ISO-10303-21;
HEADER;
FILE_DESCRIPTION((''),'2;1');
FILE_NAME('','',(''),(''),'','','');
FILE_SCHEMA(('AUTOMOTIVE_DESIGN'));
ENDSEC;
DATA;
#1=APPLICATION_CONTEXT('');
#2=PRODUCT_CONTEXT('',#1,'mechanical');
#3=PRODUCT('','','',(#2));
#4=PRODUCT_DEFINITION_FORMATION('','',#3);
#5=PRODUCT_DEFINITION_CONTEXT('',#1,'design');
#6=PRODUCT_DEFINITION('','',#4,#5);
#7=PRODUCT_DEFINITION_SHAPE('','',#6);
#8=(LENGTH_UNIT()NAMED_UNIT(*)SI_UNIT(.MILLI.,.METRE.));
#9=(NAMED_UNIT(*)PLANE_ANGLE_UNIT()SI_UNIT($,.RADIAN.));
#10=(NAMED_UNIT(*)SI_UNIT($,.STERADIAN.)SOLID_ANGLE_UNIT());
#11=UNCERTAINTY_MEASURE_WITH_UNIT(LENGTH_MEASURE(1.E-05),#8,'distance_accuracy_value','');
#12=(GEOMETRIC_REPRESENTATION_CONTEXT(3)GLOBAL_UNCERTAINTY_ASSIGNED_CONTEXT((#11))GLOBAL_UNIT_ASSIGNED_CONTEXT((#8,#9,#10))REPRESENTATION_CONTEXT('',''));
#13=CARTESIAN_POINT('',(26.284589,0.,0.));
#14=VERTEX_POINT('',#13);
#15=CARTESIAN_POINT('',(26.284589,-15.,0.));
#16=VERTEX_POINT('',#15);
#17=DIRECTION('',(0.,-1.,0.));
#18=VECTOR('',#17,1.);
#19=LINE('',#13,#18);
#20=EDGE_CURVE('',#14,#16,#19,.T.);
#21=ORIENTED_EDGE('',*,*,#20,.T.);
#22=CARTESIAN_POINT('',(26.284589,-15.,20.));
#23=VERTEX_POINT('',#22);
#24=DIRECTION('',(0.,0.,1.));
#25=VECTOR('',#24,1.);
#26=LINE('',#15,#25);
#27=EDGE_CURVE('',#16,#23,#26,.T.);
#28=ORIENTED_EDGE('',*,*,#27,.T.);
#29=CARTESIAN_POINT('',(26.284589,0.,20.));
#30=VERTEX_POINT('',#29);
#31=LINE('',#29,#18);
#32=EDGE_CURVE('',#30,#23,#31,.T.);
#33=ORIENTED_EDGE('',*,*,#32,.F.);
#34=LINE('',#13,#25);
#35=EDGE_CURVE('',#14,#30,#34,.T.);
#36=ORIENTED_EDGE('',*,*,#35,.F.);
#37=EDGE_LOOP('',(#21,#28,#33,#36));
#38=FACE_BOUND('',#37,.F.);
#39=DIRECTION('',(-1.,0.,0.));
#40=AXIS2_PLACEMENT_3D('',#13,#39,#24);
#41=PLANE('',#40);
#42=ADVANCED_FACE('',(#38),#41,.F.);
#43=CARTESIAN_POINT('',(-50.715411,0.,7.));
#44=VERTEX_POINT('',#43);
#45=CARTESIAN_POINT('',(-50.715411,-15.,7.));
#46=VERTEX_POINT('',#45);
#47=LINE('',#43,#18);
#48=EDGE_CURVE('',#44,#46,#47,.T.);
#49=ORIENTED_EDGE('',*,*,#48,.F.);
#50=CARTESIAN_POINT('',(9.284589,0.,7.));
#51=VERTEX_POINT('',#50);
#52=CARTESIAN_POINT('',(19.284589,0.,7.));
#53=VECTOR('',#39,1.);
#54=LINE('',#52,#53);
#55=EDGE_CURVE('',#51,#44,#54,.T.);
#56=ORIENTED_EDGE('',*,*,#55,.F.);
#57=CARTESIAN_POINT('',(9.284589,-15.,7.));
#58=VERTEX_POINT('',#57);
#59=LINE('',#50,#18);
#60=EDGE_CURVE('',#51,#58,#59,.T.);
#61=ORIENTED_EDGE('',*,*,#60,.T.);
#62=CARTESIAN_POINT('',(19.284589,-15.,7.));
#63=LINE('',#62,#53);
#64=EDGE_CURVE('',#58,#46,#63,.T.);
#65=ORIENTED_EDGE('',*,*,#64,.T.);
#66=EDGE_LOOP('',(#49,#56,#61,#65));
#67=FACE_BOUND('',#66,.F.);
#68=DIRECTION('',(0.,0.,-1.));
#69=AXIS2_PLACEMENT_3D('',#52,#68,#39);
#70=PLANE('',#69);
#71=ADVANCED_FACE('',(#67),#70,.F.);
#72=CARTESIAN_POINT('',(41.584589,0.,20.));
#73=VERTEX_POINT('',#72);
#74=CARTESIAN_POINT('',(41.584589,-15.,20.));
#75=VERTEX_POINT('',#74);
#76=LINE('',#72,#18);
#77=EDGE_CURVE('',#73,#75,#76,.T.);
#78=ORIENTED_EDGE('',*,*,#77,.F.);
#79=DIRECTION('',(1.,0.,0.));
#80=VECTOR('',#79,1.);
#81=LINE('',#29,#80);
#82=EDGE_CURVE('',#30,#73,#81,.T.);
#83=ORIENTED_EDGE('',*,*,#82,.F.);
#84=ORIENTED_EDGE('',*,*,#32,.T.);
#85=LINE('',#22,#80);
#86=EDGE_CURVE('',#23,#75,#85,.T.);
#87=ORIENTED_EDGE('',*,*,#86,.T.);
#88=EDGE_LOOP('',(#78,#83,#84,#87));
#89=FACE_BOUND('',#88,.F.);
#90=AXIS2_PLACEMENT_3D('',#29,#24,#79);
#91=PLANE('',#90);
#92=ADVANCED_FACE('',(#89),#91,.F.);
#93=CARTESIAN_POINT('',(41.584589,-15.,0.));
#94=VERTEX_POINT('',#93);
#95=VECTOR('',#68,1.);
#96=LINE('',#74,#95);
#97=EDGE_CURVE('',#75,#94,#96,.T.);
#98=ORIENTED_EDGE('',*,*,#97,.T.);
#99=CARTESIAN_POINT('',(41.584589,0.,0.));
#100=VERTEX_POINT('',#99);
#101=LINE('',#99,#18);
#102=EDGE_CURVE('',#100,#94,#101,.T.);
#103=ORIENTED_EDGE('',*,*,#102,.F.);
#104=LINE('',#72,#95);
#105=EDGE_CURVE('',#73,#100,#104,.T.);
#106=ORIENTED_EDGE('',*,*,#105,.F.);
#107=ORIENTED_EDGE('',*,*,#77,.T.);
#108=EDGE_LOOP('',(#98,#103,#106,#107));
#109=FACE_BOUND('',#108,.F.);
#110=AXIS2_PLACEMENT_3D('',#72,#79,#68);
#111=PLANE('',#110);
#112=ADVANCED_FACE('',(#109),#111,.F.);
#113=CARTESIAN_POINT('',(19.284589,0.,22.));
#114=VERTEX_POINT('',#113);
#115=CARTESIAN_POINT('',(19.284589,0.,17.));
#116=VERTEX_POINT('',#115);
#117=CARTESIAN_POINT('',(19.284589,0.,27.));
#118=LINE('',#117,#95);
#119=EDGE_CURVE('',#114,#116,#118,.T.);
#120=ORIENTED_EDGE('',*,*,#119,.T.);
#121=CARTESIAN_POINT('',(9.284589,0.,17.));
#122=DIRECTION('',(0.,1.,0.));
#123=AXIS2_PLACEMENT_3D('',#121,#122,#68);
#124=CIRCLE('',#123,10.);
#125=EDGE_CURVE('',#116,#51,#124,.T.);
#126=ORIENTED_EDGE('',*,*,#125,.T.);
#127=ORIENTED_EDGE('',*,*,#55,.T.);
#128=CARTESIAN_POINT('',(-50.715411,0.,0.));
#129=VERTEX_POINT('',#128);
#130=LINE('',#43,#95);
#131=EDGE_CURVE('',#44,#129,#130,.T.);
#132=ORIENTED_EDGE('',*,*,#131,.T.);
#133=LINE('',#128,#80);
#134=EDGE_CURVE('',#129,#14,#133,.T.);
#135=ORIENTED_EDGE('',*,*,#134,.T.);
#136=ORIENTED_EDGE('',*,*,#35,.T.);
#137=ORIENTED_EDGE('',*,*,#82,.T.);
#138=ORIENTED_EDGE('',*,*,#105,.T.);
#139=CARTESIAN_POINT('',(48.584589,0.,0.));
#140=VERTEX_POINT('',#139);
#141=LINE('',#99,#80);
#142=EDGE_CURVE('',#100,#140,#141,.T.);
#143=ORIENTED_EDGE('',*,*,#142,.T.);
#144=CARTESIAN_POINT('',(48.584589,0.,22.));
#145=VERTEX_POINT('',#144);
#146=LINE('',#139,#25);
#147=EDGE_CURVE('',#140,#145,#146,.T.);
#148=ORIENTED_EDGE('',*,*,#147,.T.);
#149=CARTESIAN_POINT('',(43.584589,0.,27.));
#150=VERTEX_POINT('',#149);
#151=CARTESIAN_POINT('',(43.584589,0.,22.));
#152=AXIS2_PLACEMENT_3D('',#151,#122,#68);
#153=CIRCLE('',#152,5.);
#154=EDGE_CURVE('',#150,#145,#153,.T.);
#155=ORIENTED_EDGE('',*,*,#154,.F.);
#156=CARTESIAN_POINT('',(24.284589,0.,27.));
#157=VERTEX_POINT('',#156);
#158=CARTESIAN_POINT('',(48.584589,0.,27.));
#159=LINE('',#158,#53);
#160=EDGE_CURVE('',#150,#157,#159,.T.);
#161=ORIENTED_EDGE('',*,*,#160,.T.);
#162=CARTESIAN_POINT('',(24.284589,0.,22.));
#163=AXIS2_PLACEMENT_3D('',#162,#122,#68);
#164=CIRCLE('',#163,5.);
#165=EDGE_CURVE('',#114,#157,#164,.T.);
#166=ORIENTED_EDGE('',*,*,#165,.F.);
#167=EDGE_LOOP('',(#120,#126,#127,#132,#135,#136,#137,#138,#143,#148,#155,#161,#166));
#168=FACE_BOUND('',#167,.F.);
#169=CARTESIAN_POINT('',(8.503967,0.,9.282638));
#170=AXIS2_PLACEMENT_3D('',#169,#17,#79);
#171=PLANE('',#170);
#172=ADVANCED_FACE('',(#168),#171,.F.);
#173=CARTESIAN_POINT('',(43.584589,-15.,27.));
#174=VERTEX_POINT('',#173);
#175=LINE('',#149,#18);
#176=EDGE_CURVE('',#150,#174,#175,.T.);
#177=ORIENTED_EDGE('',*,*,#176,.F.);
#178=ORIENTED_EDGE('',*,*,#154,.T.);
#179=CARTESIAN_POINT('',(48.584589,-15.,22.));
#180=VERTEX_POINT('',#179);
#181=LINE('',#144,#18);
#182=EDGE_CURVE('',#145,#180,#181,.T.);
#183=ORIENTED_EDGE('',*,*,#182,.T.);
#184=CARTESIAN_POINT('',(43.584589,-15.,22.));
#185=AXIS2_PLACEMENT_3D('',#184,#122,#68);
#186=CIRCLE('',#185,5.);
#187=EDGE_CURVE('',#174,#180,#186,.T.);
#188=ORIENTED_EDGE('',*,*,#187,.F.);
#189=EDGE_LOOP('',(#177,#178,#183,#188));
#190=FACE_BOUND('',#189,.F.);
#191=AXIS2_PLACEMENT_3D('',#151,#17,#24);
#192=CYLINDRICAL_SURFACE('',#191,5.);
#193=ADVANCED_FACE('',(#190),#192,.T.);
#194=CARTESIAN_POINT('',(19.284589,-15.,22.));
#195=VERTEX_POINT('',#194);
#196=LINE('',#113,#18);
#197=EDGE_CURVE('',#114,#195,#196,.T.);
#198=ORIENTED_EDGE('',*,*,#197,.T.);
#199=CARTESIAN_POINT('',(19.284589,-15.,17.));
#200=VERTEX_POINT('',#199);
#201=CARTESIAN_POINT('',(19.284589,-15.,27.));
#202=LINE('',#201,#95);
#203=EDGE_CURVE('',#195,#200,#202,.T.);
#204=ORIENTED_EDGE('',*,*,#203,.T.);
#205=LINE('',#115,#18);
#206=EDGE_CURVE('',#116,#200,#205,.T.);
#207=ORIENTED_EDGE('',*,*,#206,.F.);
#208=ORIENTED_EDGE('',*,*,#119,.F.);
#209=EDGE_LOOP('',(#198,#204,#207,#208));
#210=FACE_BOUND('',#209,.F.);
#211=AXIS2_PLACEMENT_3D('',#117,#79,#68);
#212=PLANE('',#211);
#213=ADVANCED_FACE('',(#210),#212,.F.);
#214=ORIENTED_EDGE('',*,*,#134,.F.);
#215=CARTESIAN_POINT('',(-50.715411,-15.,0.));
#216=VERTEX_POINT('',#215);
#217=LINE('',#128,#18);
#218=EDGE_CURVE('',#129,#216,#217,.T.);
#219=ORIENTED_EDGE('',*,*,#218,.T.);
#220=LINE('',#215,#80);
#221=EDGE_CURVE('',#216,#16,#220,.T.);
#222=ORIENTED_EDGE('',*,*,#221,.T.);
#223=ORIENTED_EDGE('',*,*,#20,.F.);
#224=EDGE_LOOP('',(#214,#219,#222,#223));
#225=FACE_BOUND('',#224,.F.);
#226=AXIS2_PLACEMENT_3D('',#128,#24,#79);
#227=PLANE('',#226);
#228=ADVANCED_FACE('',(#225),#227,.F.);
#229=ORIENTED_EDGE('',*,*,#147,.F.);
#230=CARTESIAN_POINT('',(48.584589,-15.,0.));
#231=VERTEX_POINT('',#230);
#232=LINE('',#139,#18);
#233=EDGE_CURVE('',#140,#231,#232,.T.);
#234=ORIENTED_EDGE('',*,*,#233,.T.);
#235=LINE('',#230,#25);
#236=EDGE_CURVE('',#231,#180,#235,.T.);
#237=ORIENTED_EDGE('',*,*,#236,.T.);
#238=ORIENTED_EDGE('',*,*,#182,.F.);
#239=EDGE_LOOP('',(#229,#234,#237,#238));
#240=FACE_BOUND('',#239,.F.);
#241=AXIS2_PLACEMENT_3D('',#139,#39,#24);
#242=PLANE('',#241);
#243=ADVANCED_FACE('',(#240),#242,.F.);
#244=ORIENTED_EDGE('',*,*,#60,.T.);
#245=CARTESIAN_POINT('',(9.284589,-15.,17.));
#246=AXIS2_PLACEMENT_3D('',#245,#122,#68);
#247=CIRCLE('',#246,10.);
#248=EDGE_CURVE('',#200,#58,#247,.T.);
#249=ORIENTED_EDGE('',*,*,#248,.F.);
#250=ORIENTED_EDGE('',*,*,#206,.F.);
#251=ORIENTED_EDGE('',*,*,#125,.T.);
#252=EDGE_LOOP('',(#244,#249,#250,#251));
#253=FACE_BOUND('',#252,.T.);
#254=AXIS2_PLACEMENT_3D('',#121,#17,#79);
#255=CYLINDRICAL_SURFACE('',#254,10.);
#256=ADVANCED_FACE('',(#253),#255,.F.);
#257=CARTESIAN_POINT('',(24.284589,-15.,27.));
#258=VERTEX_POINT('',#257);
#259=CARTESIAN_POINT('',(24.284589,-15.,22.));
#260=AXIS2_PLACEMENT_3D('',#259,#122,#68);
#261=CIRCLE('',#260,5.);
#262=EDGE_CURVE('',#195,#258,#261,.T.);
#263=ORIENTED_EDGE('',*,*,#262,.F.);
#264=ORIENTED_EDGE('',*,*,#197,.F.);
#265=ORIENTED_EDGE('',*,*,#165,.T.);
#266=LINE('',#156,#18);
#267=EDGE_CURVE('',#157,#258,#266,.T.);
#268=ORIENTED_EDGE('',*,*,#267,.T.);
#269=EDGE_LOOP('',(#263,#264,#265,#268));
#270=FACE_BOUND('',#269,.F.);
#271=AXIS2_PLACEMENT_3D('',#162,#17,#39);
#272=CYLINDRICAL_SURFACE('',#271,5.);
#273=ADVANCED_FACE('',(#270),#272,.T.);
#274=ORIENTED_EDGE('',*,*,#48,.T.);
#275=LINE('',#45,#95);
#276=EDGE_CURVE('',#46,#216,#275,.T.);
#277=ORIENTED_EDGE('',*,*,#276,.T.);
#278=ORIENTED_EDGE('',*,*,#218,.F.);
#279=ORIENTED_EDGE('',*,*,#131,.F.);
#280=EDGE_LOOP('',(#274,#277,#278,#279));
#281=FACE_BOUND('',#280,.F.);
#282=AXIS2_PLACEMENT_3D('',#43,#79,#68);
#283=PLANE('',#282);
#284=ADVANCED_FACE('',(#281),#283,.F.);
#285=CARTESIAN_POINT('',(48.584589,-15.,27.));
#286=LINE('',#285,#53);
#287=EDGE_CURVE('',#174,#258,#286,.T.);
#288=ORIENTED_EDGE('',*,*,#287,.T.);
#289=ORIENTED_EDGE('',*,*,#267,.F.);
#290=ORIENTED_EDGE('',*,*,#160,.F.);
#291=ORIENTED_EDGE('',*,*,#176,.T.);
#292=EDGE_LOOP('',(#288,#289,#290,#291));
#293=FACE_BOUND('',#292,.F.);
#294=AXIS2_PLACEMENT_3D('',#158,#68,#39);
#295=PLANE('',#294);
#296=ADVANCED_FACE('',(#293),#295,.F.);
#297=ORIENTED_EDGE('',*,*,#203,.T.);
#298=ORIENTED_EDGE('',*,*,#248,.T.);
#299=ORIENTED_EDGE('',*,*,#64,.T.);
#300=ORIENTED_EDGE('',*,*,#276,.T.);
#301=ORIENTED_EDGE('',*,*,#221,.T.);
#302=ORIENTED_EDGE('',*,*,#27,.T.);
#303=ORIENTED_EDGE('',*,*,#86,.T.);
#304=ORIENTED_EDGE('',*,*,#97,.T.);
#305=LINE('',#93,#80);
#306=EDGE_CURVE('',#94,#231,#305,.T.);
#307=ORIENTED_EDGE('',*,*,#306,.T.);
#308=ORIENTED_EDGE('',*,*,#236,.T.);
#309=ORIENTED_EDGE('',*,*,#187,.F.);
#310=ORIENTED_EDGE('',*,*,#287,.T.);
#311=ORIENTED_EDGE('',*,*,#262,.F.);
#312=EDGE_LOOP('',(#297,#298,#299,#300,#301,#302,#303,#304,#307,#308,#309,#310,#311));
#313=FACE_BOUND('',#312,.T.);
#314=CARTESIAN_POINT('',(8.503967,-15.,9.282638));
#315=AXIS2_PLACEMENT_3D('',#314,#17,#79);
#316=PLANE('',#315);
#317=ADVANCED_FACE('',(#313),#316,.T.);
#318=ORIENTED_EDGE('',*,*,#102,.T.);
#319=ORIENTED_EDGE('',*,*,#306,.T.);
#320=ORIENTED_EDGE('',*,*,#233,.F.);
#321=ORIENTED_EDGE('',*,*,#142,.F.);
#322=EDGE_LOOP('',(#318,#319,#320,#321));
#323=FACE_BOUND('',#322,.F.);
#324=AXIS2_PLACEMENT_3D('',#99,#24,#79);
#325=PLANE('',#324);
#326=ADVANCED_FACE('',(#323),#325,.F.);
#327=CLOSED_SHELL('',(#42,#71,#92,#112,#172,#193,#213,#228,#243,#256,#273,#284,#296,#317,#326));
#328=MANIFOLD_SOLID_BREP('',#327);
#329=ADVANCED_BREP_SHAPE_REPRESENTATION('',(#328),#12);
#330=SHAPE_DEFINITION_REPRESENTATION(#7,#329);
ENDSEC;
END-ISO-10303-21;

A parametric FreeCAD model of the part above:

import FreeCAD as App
import Part
import Sketcher


def edges_at(feature, points):
    """Names of the edges that pass closest to the given points."""
    edges = feature.Shape.Edges
    near = lambda p: min(range(len(edges)), key=lambda i: edges[i].distToShape(Part.Vertex(*p))[0])
    return sorted({f"Edge{near(p) + 1}" for p in points})

doc = App.newDocument("Part")
body = doc.addObject("PartDesign::Body", "Body")

# Sketch on XZ plane
sketch1 = body.newObject("Sketcher::SketchObject", "Sketch")
sketch1.AttachmentSupport = (doc.getObject("XZ_Plane"), [""])
sketch1.MapMode = "FlatFace"
sketch1.addGeometry(Part.LineSegment(App.Vector(41.584589, 20, 0), App.Vector(41.584589, 0, 0)), False)
sketch1.addGeometry(Part.LineSegment(App.Vector(41.584589, 0, 0), App.Vector(48.584589, 0, 0)), False)
sketch1.addGeometry(Part.LineSegment(App.Vector(48.584589, 0, 0), App.Vector(48.584589, 27, 0)), False)
sketch1.addGeometry(Part.LineSegment(App.Vector(48.584589, 27, 0), App.Vector(19.284589, 27, 0)), False)
sketch1.addGeometry(Part.LineSegment(App.Vector(19.284589, 27, 0), App.Vector(19.284589, 7, 0)), False)
sketch1.addGeometry(Part.LineSegment(App.Vector(19.284589, 7, 0), App.Vector(-50.715411, 7, 0)), False)
sketch1.addGeometry(Part.LineSegment(App.Vector(-50.715411, 7, 0), App.Vector(-50.715411, 0, 0)), False)
sketch1.addGeometry(Part.LineSegment(App.Vector(-50.715411, 0, 0), App.Vector(26.284589, 0, 0)), False)
sketch1.addGeometry(Part.LineSegment(App.Vector(26.284589, 0, 0), App.Vector(26.284589, 20, 0)), False)
sketch1.addGeometry(Part.LineSegment(App.Vector(26.284589, 20, 0), App.Vector(41.584589, 20, 0)), False)
sketch1.addConstraint(Sketcher.Constraint("Coincident", 0, 2, 1, 1))
sketch1.addConstraint(Sketcher.Constraint("Coincident", 1, 2, 2, 1))
sketch1.addConstraint(Sketcher.Constraint("Coincident", 2, 2, 3, 1))
sketch1.addConstraint(Sketcher.Constraint("Coincident", 3, 2, 4, 1))
sketch1.addConstraint(Sketcher.Constraint("Coincident", 4, 2, 5, 1))
sketch1.addConstraint(Sketcher.Constraint("Coincident", 5, 2, 6, 1))
sketch1.addConstraint(Sketcher.Constraint("Coincident", 6, 2, 7, 1))
sketch1.addConstraint(Sketcher.Constraint("Coincident", 7, 2, 8, 1))
sketch1.addConstraint(Sketcher.Constraint("Coincident", 8, 2, 9, 1))
sketch1.addConstraint(Sketcher.Constraint("Coincident", 9, 2, 0, 1))
sketch1.addConstraint(Sketcher.Constraint("Vertical", 0))
sketch1.addConstraint(Sketcher.Constraint("Horizontal", 1))
sketch1.addConstraint(Sketcher.Constraint("Vertical", 2))
sketch1.addConstraint(Sketcher.Constraint("Horizontal", 3))
sketch1.addConstraint(Sketcher.Constraint("Vertical", 4))
sketch1.addConstraint(Sketcher.Constraint("Horizontal", 5))
sketch1.addConstraint(Sketcher.Constraint("Vertical", 6))
sketch1.addConstraint(Sketcher.Constraint("Horizontal", 7))
sketch1.addConstraint(Sketcher.Constraint("Vertical", 8))
sketch1.addConstraint(Sketcher.Constraint("Horizontal", 9))
sketch1.addConstraint(Sketcher.Constraint("PointOnObject", 0, 2, -1))
sketch1.addConstraint(Sketcher.Constraint("PointOnObject", 6, 2, -1))
sketch1.addConstraint(Sketcher.Constraint("Equal", 0, 4))
sketch1.addConstraint(Sketcher.Constraint("Equal", 1, 6))
sketch1.addConstraint(Sketcher.Constraint("DistanceX", 1, 1, 1, 2, 7.0))
sketch1.addConstraint(Sketcher.Constraint("DistanceX", 5, 2, 5, 1, 70.0))
sketch1.addConstraint(Sketcher.Constraint("DistanceX", 7, 1, 7, 2, 77.0))
sketch1.addConstraint(Sketcher.Constraint("DistanceY", 0, 2, 0, 1, 20.0))
sketch1.addConstraint(Sketcher.Constraint("DistanceX", 3, 2, 3, 1, 29.3))
sketch1.addConstraint(Sketcher.Constraint("DistanceX", -1, 1, 0, 2, 41.584589))
pad1 = body.newObject("PartDesign::Pad", "Pad")
pad1.Profile = sketch1
pad1.Length = 15
doc.recompute()

fillet = body.newObject("PartDesign::Fillet", "Fillet")
fillet.Base = (pad1, edges_at(pad1, [(19.285, -7.5, 7)]))
fillet.Radius = 10
doc.recompute()

fillet2 = body.newObject("PartDesign::Fillet", "Fillet001")
fillet2.Base = (fillet, edges_at(fillet, [(19.285, -7.5, 27)]))
fillet2.Radius = 5
doc.recompute()

fillet3 = body.newObject("PartDesign::Fillet", "Fillet002")
fillet3.Base = (fillet2, edges_at(fillet2, [(48.585, -7.5, 27)]))
fillet3.Radius = 5

doc.recompute()
